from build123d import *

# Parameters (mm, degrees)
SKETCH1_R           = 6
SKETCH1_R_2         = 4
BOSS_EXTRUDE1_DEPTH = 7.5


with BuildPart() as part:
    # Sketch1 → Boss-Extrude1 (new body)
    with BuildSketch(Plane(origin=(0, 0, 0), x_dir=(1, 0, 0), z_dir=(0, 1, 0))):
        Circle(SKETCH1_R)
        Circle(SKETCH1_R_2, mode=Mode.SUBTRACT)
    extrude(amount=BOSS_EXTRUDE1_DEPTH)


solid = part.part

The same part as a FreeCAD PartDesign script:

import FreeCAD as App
import Part
import Sketcher
from FreeCAD import Vector
Q = App.Units.Quantity

doc = App.newDocument("Part")
params = doc.addObject("Spreadsheet::Sheet", "Params")
for row, (alias, value) in enumerate([
    ("sketch1_diameter", "12 mm"),
    ("sketch1_diameter2", "8 mm"),
    ("pad1_length", "7.5 mm"),
], start=1):
    params.set(f"A{row}", alias)
    params.set(f"B{row}", "=" + value)
    params.setAlias(f"B{row}", alias)

body = doc.addObject("PartDesign::Body", "Body")

# Sketch on XZ plane
sketch1 = body.newObject("Sketcher::SketchObject", "Sketch")
sketch1.AttachmentSupport = (doc.getObject("XZ_Plane"), [""])
sketch1.MapMode = "FlatFace"
sketch1.addGeometry([
    Part.Circle(Vector(0, 0, 0), Vector(0, 0, 1), 6),
    Part.Circle(Vector(0, 0, 0), Vector(0, 0, 1), 4),
], False)
sketch1.addConstraint([
    Sketcher.Constraint("Coincident", 0, 3, -1, 1),
    Sketcher.Constraint("Coincident", 1, 3, -1, 1),
    Sketcher.Constraint("Diameter", 0, Q("12 mm")),
    Sketcher.Constraint("Diameter", 1, Q("8 mm")),
])
sketch1.setExpression("Constraints[2]", "Params.sketch1_diameter")
sketch1.setExpression("Constraints[3]", "Params.sketch1_diameter2")
pad1 = body.newObject("PartDesign::Pad", "Pad")
pad1.Profile = sketch1
pad1.setExpression("Length", "Params.pad1_length")
pad1.Reversed = True

doc.recompute()
